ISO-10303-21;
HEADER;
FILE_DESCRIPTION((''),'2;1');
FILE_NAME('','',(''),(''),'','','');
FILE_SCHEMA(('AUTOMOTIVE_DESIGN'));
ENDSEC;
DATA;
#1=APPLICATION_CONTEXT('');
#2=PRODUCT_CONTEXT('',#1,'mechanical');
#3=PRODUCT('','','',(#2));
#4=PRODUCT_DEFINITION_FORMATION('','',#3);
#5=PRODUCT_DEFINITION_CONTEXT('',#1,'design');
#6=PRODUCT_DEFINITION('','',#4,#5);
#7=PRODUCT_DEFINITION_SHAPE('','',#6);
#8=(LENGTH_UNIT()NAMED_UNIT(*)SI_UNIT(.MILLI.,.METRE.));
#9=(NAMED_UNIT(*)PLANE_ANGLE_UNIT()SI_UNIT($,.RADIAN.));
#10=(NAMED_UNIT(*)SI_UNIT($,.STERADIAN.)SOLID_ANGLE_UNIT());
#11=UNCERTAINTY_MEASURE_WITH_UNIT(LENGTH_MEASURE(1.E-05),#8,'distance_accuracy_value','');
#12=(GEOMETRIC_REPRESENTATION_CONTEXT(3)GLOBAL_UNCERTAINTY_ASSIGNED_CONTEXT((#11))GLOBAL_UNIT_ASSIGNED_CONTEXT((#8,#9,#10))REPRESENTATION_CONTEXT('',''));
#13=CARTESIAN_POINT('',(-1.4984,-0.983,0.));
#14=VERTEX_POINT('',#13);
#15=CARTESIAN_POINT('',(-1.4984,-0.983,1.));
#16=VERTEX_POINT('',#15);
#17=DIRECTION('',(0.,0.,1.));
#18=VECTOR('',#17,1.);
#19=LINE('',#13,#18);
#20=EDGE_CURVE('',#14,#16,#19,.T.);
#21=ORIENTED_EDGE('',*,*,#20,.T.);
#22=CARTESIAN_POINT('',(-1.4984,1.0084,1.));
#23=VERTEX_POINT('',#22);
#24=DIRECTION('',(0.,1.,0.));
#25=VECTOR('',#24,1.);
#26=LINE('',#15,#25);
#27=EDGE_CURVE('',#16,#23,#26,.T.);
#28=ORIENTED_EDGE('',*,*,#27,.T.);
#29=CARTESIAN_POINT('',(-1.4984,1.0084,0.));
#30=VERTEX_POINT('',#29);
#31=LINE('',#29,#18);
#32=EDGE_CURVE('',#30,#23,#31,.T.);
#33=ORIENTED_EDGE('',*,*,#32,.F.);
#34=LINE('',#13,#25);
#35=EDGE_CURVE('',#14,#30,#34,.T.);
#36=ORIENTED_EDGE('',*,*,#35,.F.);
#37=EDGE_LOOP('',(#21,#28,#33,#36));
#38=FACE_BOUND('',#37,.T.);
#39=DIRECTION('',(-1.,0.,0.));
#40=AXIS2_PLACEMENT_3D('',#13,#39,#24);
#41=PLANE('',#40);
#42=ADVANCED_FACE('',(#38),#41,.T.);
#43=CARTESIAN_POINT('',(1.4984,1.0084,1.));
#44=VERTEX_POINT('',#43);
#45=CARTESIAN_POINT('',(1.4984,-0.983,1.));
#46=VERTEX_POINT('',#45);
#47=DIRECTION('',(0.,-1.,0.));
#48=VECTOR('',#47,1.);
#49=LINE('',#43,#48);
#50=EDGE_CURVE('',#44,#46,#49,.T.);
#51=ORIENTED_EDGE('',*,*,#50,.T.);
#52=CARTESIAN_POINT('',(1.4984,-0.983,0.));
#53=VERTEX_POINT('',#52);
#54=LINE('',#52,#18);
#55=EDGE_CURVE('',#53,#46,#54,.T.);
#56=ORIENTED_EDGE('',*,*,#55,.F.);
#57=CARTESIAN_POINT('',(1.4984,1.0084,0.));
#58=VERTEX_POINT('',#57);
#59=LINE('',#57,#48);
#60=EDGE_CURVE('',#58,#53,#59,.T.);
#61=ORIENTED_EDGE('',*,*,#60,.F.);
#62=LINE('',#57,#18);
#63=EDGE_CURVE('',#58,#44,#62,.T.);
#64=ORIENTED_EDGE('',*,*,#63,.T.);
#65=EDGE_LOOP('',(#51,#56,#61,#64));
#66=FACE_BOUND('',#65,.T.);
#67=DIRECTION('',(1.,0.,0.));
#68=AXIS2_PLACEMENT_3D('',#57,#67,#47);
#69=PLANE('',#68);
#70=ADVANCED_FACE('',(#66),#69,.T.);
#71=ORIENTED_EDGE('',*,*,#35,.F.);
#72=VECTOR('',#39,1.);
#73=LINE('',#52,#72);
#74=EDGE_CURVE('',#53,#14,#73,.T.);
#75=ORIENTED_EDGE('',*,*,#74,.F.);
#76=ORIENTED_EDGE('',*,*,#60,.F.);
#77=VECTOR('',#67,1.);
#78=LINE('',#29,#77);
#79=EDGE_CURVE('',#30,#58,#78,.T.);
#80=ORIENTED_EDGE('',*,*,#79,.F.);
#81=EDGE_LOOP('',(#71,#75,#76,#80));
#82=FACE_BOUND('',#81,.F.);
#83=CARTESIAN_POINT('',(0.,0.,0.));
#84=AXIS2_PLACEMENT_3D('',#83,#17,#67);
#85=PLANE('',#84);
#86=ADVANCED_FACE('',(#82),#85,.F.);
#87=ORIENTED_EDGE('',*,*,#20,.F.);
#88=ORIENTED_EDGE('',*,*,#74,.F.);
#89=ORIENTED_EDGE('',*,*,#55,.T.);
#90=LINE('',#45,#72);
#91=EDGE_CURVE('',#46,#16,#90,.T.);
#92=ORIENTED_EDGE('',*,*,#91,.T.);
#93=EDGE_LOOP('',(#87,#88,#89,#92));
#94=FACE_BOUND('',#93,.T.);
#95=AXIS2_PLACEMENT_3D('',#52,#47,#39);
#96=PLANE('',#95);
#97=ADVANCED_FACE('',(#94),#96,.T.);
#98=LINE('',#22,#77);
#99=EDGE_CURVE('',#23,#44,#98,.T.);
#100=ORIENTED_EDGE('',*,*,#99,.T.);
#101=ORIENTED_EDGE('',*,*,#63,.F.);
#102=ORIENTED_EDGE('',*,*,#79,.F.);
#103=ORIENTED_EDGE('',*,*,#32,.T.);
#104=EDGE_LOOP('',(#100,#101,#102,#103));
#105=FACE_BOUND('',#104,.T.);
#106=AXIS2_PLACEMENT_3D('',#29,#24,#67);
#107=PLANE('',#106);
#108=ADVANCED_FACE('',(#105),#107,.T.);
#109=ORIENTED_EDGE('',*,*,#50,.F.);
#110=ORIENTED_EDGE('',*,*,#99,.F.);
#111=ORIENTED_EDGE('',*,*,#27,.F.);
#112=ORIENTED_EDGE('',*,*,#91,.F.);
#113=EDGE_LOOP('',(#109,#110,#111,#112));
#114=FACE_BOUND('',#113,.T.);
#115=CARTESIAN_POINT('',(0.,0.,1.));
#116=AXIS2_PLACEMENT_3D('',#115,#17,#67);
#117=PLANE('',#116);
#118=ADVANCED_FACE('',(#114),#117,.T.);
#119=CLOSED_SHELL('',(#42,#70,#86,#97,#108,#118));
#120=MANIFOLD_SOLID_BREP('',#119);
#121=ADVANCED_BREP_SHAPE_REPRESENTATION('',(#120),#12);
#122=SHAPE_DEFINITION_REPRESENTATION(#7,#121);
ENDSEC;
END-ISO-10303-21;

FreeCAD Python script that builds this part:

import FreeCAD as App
import Part
import Sketcher

V = App.Vector
Q = App.Units.Quantity


def add_polygon(sketch, points):
    """Adds a closed chain of lines whose ends are joined by coincident constraints."""
    first, n = sketch.GeometryCount, len(points)
    for a, b in zip(points, points[1:] + points[:1]):
        sketch.addGeometry(Part.LineSegment(App.Vector(*a, 0), App.Vector(*b, 0)), False)
    for i in range(n):
        sketch.addConstraint(Sketcher.Constraint("Coincident", first + i, 2, first + (i + 1) % n, 1))

doc = App.newDocument("Part")
body = doc.addObject("PartDesign::Body", "Body")

# Sketch on XY plane
sketch1 = body.newObject("Sketcher::SketchObject", "Sketch")
sketch1.AttachmentSupport = (doc.getObject("XY_Plane"), [""])
sketch1.MapMode = "FlatFace"
add_polygon(sketch1, [(1.5, 1), (-1.5, 1), (-1.5, -1), (1.5, -1)])  # lines 0-3
sketch1.addConstraint([
    Sketcher.Constraint("Horizontal", 0),
    Sketcher.Constraint("Vertical", 1),
    Sketcher.Constraint("Horizontal", 2),
    Sketcher.Constraint("Vertical", 3),
    Sketcher.Constraint("DistanceX", 0, 2, 0, 1, Q("2.9968 mm")),
    Sketcher.Constraint("DistanceY", 1, 2, 1, 1, Q("1.9914 mm")),
    Sketcher.Constraint("DistanceY", 1, 2, -1, 1, Q("0.983 mm")),
    Sketcher.Constraint("DistanceX", 0, 2, -1, 1, Q("1.4984 mm")),
])
pad1 = body.newObject("PartDesign::Pad", "Pad")
pad1.Profile = sketch1
pad1.Length = 1

doc.recompute()
